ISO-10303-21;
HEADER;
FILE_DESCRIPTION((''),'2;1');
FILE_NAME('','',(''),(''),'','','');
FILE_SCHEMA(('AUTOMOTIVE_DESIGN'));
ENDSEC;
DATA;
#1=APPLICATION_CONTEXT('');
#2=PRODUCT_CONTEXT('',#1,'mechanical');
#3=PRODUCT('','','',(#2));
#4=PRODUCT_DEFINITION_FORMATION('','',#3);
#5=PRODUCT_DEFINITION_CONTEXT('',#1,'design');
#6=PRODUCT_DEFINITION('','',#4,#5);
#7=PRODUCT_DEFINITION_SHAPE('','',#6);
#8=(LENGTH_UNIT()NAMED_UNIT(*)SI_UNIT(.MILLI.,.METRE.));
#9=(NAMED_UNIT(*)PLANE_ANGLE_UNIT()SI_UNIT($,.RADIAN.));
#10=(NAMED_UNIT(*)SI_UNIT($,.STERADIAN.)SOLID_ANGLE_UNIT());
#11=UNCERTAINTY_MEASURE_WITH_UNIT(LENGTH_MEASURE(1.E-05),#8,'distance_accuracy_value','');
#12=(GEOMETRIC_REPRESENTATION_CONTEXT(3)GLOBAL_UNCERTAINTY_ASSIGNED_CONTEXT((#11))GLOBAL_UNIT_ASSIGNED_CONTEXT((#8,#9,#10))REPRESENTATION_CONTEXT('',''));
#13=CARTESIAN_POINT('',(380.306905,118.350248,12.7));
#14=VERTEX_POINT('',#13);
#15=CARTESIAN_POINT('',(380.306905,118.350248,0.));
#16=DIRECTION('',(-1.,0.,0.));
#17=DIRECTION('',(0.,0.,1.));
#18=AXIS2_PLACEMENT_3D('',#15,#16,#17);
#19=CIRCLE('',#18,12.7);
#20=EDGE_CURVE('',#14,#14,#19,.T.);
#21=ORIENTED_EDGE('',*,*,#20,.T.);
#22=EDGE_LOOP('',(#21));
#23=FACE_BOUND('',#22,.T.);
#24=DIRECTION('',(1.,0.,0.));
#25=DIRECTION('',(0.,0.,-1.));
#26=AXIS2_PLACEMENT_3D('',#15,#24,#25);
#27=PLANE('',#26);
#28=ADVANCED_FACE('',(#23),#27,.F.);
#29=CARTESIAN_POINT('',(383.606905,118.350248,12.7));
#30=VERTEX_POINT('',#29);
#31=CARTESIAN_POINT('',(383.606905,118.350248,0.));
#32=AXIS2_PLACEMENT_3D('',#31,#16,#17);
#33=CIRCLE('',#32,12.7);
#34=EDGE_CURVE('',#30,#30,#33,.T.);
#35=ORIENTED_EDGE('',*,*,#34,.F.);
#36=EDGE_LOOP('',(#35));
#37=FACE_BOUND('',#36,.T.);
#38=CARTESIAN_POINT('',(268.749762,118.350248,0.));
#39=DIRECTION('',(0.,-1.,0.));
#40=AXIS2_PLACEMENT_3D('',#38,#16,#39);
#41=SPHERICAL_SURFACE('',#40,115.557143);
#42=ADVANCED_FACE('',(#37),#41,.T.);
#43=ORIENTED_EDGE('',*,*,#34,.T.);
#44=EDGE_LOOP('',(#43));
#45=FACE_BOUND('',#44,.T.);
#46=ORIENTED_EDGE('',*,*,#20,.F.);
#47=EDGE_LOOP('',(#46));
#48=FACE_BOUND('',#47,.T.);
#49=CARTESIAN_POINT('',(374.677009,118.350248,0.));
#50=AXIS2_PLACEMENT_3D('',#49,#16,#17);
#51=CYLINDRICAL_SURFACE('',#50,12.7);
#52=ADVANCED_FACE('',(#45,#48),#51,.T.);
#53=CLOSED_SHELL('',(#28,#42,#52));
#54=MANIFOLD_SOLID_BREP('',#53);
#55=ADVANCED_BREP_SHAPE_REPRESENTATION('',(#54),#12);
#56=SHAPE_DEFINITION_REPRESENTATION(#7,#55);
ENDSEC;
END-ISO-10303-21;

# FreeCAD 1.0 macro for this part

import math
import FreeCAD as App
import Part
import Sketcher

V = App.Vector
Q = App.Units.Quantity

doc = App.newDocument("Part")
params = doc.addObject("Spreadsheet::Sheet", "Params")
for row, (alias, value) in enumerate([
    ("sketch1_width", "4 mm"),
    ("sketch1_width2", "3.3 mm"),
    ("sketch1_height", "12.7 mm"),
    ("revolution_angle", "360 deg"),
], start=1):
    params.set(f"A{row}", alias)
    params.set(f"B{row}", "=" + value)
    params.setAlias(f"B{row}", alias)

body = doc.addObject("PartDesign::Body", "Body")

# Sketch on XY plane
sketch1 = doc.addObject("Sketcher::SketchObject", "Sketch")
body.addObject(sketch1)
sketch1.AttachmentSupport = (doc.XY_Plane, [""])
sketch1.MapMode = "FlatFace"
sketch1.addGeometry(Part.LineSegment(V(380.3, 131.1, 0), V(380.3, 118.4, 0)), False)
sketch1.addGeometry(Part.LineSegment(V(380.3, 118.4, 0), V(384.3, 118.4, 0)), False)
sketch1.addGeometry(Part.ArcOfCircle(Part.Circle(V(268.7, 118.4, 0), V(0, 0, 1), 115.6), math.radians(0), math.radians(6.31)), False)
sketch1.addGeometry(Part.LineSegment(V(383.6, 131.1, 0), V(380.3, 131.1, 0)), False)
sketch1.addGeometry(Part.LineSegment(V(268.7, 118.4, 0), V(384.3, 118.4, 0)), True)  # axis
sketch1.addConstraint(Sketcher.Constraint("Coincident", 0, 2, 1, 1))
sketch1.addConstraint(Sketcher.Constraint("Coincident", 1, 2, 2, 1))
sketch1.addConstraint(Sketcher.Constraint("Coincident", 2, 2, 3, 1))
sketch1.addConstraint(Sketcher.Constraint("Coincident", 3, 2, 0, 1))
sketch1.addConstraint(Sketcher.Constraint("Vertical", 0))
sketch1.addConstraint(Sketcher.Constraint("Horizontal", 1))
sketch1.addConstraint(Sketcher.Constraint("Horizontal", 3))
sketch1.addConstraint(Sketcher.Constraint("Horizontal", 4))
sketch1.addConstraint(Sketcher.Constraint("Coincident", 4, 1, 2, 3))
sketch1.addConstraint(Sketcher.Constraint("Coincident", 4, 2, 1, 2))
sketch1.addConstraint(Sketcher.Constraint("DistanceX", 1, 1, 1, 2, Q("4 mm")))
sketch1.addConstraint(Sketcher.Constraint("DistanceX", 3, 2, 3, 1, Q("3.3 mm")))
sketch1.addConstraint(Sketcher.Constraint("DistanceY", 0, 2, 0, 1, Q("12.7 mm")))
sketch1.addConstraint(Sketcher.Constraint("DistanceY", -1, 1, 2, 3, Q("118.350248 mm")))
sketch1.addConstraint(Sketcher.Constraint("DistanceX", -1, 1, 2, 3, Q("268.749762 mm")))
sketch1.setExpression("Constraints[10]", "Params.sketch1_width")
sketch1.setExpression("Constraints[11]", "Params.sketch1_width2")
sketch1.setExpression("Constraints[12]", "Params.sketch1_height")
revolution = doc.addObject("PartDesign::Revolution", "Revolution")
body.addObject(revolution)
revolution.Profile = sketch1
revolution.ReferenceAxis = (sketch1, ["Axis0"])
revolution.setExpression("Angle", "Params.revolution_angle")

doc.recompute()
